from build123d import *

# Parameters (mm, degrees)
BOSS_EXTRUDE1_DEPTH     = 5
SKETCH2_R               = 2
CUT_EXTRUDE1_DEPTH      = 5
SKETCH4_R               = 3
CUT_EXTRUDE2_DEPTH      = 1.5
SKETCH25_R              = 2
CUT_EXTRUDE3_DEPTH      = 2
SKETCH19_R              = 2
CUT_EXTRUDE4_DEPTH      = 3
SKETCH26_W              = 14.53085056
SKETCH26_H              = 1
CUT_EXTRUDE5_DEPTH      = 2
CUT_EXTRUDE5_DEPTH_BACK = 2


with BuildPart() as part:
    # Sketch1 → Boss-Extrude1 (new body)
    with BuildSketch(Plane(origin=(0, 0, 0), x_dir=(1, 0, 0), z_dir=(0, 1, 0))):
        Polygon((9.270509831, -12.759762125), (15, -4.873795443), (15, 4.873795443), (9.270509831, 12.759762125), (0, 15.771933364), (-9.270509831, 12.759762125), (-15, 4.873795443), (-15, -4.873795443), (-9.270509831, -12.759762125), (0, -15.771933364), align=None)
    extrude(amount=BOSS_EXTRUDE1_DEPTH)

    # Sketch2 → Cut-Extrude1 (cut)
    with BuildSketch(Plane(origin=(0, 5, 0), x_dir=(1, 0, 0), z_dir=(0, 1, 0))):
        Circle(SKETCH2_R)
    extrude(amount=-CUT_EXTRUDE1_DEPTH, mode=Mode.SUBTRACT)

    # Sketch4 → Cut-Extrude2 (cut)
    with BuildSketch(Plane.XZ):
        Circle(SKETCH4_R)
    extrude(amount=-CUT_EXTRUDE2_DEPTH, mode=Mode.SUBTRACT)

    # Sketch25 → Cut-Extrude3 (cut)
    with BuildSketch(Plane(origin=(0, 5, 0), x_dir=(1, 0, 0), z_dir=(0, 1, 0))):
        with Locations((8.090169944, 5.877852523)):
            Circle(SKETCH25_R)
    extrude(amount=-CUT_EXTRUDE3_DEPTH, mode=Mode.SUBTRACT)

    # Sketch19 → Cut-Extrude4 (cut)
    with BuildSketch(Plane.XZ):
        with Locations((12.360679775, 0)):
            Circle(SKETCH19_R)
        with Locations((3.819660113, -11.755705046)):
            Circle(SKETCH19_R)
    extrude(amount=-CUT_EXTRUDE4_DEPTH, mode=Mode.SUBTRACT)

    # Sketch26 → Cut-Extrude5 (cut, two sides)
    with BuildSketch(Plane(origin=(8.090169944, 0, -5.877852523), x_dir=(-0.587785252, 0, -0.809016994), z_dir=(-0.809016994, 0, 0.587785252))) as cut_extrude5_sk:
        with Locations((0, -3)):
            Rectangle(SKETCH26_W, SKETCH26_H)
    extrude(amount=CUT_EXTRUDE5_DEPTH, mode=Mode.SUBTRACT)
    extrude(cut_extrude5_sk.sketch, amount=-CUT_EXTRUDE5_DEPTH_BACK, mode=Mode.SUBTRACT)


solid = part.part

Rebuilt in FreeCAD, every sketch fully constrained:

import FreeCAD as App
import Part
import Sketcher
Q = App.Units.Quantity


def add_polygon(sketch, points):
    """Adds a closed chain of lines whose ends are joined by coincident constraints."""
    first, n = sketch.GeometryCount, len(points)
    for a, b in zip(points, points[1:] + points[:1]):
        sketch.addGeometry(Part.LineSegment(App.Vector(*a, 0), App.Vector(*b, 0)), False)
    for i in range(n):
        sketch.addConstraint(Sketcher.Constraint("Coincident", first + i, 2, first + (i + 1) % n, 1))

doc = App.newDocument("Part")
params = doc.addObject("Spreadsheet::Sheet", "Params")
for row, (alias, value) in enumerate([
    ("pad1_length", "5 mm"),
    ("sketch2_diameter", "4 mm"),
    ("pocket1_length", "5 mm"),
    ("sketch3_diameter", "6 mm"),
    ("pocket2_length", "1.5 mm"),
    ("sketch4_diameter", "4 mm"),
    ("pocket3_length", "2 mm"),
    ("sketch5_diameter", "4 mm"),
    ("pocket4_length", "3 mm"),
    ("sketch6_height", "1 mm"),
    ("pocket5_length", "2 mm"),
    ("pocket5_length2", "2 mm"),
], start=1):
    params.set(f"A{row}", alias)
    params.set(f"B{row}", "=" + value)
    params.setAlias(f"B{row}", alias)

body = doc.addObject("PartDesign::Body", "Body")

# Sketch on XZ plane
sketch1 = doc.addObject("Sketcher::SketchObject", "Sketch")
body.addObject(sketch1)
sketch1.AttachmentSupport = (doc.XZ_Plane, [""])
sketch1.MapMode = "FlatFace"
add_polygon(sketch1, [(9, 13), (15, 5), (15, -5), (9, -13), (0, -16), (-9, -13), (-15, -5), (-15, 5), (-9, 13), (0, 16)])  # lines 0-9
sketch1.addConstraint([
    Sketcher.Constraint("Vertical", 1),
    Sketcher.Constraint("Vertical", 6),
    Sketcher.Constraint("Symmetric", 0, 2, 5, 2, -1, 1),
    Sketcher.Constraint("Symmetric", 2, 2, 7, 2, -1, 1),
    Sketcher.Constraint("Symmetric", 3, 2, 8, 2, -1, 1),
    Sketcher.Constraint("Symmetric", 4, 2, 9, 2, -1, 1),
    Sketcher.Constraint("Symmetric", 2, 2, 4, 2, -2),
    Sketcher.Constraint("PointOnObject", 3, 2, -2),
    Sketcher.Constraint("Parallel", 2, 7),
    Sketcher.Constraint("Horizontal", 1, 2, 5, 2),
    Sketcher.Constraint("Equal", 2, 3),
    Sketcher.Constraint("Angle", 0, Q("-54 deg")),
    Sketcher.Constraint("Angle", 3, Q("-162 deg")),
    Sketcher.Constraint("DistanceX", -1, 1, 0, 2, 15.0),
    Sketcher.Constraint("DistanceY", 1, 2, 1, 1, 9.747591),
])
pad1 = doc.addObject("PartDesign::Pad", "Pad")
body.addObject(pad1)
pad1.Profile = sketch1
pad1.setExpression("Length", "Params.pad1_length")
pad1.Reversed = True

# Sketch on XZ plane
sketch2 = doc.addObject("Sketcher::SketchObject", "Sketch001")
body.addObject(sketch2)
sketch2.AttachmentSupport = (doc.XZ_Plane, [""])
sketch2.MapMode = "FlatFace"
sketch2.AttachmentOffset = App.Placement(App.Vector(0, 0, -5), App.Rotation())
sketch2.addGeometry(Part.Circle(App.Vector(0, 0, 0), App.Vector(0, 0, 1), 2), False)
sketch2.addConstraint([
    Sketcher.Constraint("Coincident", 0, 3, -1, 1),
    Sketcher.Constraint("Diameter", 0, 4.0),
])
sketch2.setExpression("Constraints[1]", "Params.sketch2_diameter")
pocket1 = doc.addObject("PartDesign::Pocket", "Pocket")
body.addObject(pocket1)
pocket1.Profile = sketch2
pocket1.setExpression("Length", "Params.pocket1_length")
pocket1.Reversed = True

# Sketch on XZ plane
sketch3 = doc.addObject("Sketcher::SketchObject", "Sketch002")
body.addObject(sketch3)
sketch3.AttachmentSupport = (doc.XZ_Plane, [""])
sketch3.MapMode = "FlatFace"
sketch3.addGeometry(Part.Circle(App.Vector(0, 0, 0), App.Vector(0, 0, 1), 3), False)
sketch3.addConstraint([
    Sketcher.Constraint("Coincident", 0, 3, -1, 1),
    Sketcher.Constraint("Diameter", 0, 6.0),
])
sketch3.setExpression("Constraints[1]", "Params.sketch3_diameter")
pocket2 = doc.addObject("PartDesign::Pocket", "Pocket001")
body.addObject(pocket2)
pocket2.Profile = sketch3
pocket2.setExpression("Length", "Params.pocket2_length")

# Sketch on XZ plane
sketch4 = doc.addObject("Sketcher::SketchObject", "Sketch003")
body.addObject(sketch4)
sketch4.AttachmentSupport = (doc.XZ_Plane, [""])
sketch4.MapMode = "FlatFace"
sketch4.AttachmentOffset = App.Placement(App.Vector(0, 0, -5), App.Rotation())
sketch4.addGeometry(Part.Circle(App.Vector(8.1, -5.9, 0), App.Vector(0, 0, 1), 2), False)
sketch4.addConstraint([
    Sketcher.Constraint("Diameter", 0, 4.0),
    Sketcher.Constraint("DistanceX", -1, 1, 0, 3, 8.09017),
    Sketcher.Constraint("DistanceY", 0, 3, -1, 1, 5.877853),
])
sketch4.setExpression("Constraints[0]", "Params.sketch4_diameter")
pocket3 = doc.addObject("PartDesign::Pocket", "Pocket002")
body.addObject(pocket3)
pocket3.Profile = sketch4
pocket3.setExpression("Length", "Params.pocket3_length")
pocket3.Reversed = True

# Sketch on XZ plane
sketch5 = doc.addObject("Sketcher::SketchObject", "Sketch004")
body.addObject(sketch5)
sketch5.AttachmentSupport = (doc.XZ_Plane, [""])
sketch5.MapMode = "FlatFace"
sketch5.addGeometry([
    Part.Circle(App.Vector(12.4, 0, 0), App.Vector(0, 0, 1), 2),
    Part.Circle(App.Vector(3.8, -11.8, 0), App.Vector(0, 0, 1), 2),
], False)
sketch5.addConstraint([
    Sketcher.Constraint("Equal", 0, 1),
    Sketcher.Constraint("PointOnObject", 0, 3, -1),
    Sketcher.Constraint("Diameter", 0, 4.0),
    Sketcher.Constraint("DistanceX", -1, 1, 0, 3, 12.36068),
    Sketcher.Constraint("DistanceX", -1, 1, 1, 3, 3.81966),
    Sketcher.Constraint("DistanceY", 1, 3, -1, 1, 11.755705),
])
sketch5.setExpression("Constraints[2]", "Params.sketch5_diameter")
pocket4 = doc.addObject("PartDesign::Pocket", "Pocket003")
body.addObject(pocket4)
pocket4.Profile = sketch5
pocket4.setExpression("Length", "Params.pocket4_length")

# Sketch on an angled plane
sketch6 = doc.addObject("Sketcher::SketchObject", "Sketch005")
body.addObject(sketch6)
sketch6.Placement = App.Placement(App.Vector(8.09017, 0, -5.877853), App.Rotation(App.Vector(-0.587785252, 0, -0.809016994), App.Vector(0, -0.999999999, 0), App.Vector(-0.809016994, 0, 0.587785252), "ZXY"))
add_polygon(sketch6, [(-7.3, -2.5), (-7.3, -3.5), (7.3, -3.5), (7.3, -2.5)])  # lines 0-3
sketch6.addConstraint([
    Sketcher.Constraint("Vertical", 0),
    Sketcher.Constraint("Horizontal", 1),
    Sketcher.Constraint("Vertical", 2),
    Sketcher.Constraint("Horizontal", 3),
    Sketcher.Constraint("DistanceY", 0, 2, 0, 1, 1.0),
    Sketcher.Constraint("DistanceY", 0, 2, -1, 1, 3.5),
    Sketcher.Constraint("DistanceX", 1, 1, 1, 2, 14.530851),
    Sketcher.Constraint("DistanceX", 0, 2, -1, 1, 7.265425),
])
sketch6.setExpression("Constraints[8]", "Params.sketch6_height")
pocket5 = doc.addObject("PartDesign::Pocket", "Pocket004")
body.addObject(pocket5)
pocket5.Profile = sketch6
pocket5.Type = "TwoLengths"
pocket5.setExpression("Length", "Params.pocket5_length")
pocket5.setExpression("Length2", "Params.pocket5_length2")
pocket5.Reversed = True

doc.recompute()
